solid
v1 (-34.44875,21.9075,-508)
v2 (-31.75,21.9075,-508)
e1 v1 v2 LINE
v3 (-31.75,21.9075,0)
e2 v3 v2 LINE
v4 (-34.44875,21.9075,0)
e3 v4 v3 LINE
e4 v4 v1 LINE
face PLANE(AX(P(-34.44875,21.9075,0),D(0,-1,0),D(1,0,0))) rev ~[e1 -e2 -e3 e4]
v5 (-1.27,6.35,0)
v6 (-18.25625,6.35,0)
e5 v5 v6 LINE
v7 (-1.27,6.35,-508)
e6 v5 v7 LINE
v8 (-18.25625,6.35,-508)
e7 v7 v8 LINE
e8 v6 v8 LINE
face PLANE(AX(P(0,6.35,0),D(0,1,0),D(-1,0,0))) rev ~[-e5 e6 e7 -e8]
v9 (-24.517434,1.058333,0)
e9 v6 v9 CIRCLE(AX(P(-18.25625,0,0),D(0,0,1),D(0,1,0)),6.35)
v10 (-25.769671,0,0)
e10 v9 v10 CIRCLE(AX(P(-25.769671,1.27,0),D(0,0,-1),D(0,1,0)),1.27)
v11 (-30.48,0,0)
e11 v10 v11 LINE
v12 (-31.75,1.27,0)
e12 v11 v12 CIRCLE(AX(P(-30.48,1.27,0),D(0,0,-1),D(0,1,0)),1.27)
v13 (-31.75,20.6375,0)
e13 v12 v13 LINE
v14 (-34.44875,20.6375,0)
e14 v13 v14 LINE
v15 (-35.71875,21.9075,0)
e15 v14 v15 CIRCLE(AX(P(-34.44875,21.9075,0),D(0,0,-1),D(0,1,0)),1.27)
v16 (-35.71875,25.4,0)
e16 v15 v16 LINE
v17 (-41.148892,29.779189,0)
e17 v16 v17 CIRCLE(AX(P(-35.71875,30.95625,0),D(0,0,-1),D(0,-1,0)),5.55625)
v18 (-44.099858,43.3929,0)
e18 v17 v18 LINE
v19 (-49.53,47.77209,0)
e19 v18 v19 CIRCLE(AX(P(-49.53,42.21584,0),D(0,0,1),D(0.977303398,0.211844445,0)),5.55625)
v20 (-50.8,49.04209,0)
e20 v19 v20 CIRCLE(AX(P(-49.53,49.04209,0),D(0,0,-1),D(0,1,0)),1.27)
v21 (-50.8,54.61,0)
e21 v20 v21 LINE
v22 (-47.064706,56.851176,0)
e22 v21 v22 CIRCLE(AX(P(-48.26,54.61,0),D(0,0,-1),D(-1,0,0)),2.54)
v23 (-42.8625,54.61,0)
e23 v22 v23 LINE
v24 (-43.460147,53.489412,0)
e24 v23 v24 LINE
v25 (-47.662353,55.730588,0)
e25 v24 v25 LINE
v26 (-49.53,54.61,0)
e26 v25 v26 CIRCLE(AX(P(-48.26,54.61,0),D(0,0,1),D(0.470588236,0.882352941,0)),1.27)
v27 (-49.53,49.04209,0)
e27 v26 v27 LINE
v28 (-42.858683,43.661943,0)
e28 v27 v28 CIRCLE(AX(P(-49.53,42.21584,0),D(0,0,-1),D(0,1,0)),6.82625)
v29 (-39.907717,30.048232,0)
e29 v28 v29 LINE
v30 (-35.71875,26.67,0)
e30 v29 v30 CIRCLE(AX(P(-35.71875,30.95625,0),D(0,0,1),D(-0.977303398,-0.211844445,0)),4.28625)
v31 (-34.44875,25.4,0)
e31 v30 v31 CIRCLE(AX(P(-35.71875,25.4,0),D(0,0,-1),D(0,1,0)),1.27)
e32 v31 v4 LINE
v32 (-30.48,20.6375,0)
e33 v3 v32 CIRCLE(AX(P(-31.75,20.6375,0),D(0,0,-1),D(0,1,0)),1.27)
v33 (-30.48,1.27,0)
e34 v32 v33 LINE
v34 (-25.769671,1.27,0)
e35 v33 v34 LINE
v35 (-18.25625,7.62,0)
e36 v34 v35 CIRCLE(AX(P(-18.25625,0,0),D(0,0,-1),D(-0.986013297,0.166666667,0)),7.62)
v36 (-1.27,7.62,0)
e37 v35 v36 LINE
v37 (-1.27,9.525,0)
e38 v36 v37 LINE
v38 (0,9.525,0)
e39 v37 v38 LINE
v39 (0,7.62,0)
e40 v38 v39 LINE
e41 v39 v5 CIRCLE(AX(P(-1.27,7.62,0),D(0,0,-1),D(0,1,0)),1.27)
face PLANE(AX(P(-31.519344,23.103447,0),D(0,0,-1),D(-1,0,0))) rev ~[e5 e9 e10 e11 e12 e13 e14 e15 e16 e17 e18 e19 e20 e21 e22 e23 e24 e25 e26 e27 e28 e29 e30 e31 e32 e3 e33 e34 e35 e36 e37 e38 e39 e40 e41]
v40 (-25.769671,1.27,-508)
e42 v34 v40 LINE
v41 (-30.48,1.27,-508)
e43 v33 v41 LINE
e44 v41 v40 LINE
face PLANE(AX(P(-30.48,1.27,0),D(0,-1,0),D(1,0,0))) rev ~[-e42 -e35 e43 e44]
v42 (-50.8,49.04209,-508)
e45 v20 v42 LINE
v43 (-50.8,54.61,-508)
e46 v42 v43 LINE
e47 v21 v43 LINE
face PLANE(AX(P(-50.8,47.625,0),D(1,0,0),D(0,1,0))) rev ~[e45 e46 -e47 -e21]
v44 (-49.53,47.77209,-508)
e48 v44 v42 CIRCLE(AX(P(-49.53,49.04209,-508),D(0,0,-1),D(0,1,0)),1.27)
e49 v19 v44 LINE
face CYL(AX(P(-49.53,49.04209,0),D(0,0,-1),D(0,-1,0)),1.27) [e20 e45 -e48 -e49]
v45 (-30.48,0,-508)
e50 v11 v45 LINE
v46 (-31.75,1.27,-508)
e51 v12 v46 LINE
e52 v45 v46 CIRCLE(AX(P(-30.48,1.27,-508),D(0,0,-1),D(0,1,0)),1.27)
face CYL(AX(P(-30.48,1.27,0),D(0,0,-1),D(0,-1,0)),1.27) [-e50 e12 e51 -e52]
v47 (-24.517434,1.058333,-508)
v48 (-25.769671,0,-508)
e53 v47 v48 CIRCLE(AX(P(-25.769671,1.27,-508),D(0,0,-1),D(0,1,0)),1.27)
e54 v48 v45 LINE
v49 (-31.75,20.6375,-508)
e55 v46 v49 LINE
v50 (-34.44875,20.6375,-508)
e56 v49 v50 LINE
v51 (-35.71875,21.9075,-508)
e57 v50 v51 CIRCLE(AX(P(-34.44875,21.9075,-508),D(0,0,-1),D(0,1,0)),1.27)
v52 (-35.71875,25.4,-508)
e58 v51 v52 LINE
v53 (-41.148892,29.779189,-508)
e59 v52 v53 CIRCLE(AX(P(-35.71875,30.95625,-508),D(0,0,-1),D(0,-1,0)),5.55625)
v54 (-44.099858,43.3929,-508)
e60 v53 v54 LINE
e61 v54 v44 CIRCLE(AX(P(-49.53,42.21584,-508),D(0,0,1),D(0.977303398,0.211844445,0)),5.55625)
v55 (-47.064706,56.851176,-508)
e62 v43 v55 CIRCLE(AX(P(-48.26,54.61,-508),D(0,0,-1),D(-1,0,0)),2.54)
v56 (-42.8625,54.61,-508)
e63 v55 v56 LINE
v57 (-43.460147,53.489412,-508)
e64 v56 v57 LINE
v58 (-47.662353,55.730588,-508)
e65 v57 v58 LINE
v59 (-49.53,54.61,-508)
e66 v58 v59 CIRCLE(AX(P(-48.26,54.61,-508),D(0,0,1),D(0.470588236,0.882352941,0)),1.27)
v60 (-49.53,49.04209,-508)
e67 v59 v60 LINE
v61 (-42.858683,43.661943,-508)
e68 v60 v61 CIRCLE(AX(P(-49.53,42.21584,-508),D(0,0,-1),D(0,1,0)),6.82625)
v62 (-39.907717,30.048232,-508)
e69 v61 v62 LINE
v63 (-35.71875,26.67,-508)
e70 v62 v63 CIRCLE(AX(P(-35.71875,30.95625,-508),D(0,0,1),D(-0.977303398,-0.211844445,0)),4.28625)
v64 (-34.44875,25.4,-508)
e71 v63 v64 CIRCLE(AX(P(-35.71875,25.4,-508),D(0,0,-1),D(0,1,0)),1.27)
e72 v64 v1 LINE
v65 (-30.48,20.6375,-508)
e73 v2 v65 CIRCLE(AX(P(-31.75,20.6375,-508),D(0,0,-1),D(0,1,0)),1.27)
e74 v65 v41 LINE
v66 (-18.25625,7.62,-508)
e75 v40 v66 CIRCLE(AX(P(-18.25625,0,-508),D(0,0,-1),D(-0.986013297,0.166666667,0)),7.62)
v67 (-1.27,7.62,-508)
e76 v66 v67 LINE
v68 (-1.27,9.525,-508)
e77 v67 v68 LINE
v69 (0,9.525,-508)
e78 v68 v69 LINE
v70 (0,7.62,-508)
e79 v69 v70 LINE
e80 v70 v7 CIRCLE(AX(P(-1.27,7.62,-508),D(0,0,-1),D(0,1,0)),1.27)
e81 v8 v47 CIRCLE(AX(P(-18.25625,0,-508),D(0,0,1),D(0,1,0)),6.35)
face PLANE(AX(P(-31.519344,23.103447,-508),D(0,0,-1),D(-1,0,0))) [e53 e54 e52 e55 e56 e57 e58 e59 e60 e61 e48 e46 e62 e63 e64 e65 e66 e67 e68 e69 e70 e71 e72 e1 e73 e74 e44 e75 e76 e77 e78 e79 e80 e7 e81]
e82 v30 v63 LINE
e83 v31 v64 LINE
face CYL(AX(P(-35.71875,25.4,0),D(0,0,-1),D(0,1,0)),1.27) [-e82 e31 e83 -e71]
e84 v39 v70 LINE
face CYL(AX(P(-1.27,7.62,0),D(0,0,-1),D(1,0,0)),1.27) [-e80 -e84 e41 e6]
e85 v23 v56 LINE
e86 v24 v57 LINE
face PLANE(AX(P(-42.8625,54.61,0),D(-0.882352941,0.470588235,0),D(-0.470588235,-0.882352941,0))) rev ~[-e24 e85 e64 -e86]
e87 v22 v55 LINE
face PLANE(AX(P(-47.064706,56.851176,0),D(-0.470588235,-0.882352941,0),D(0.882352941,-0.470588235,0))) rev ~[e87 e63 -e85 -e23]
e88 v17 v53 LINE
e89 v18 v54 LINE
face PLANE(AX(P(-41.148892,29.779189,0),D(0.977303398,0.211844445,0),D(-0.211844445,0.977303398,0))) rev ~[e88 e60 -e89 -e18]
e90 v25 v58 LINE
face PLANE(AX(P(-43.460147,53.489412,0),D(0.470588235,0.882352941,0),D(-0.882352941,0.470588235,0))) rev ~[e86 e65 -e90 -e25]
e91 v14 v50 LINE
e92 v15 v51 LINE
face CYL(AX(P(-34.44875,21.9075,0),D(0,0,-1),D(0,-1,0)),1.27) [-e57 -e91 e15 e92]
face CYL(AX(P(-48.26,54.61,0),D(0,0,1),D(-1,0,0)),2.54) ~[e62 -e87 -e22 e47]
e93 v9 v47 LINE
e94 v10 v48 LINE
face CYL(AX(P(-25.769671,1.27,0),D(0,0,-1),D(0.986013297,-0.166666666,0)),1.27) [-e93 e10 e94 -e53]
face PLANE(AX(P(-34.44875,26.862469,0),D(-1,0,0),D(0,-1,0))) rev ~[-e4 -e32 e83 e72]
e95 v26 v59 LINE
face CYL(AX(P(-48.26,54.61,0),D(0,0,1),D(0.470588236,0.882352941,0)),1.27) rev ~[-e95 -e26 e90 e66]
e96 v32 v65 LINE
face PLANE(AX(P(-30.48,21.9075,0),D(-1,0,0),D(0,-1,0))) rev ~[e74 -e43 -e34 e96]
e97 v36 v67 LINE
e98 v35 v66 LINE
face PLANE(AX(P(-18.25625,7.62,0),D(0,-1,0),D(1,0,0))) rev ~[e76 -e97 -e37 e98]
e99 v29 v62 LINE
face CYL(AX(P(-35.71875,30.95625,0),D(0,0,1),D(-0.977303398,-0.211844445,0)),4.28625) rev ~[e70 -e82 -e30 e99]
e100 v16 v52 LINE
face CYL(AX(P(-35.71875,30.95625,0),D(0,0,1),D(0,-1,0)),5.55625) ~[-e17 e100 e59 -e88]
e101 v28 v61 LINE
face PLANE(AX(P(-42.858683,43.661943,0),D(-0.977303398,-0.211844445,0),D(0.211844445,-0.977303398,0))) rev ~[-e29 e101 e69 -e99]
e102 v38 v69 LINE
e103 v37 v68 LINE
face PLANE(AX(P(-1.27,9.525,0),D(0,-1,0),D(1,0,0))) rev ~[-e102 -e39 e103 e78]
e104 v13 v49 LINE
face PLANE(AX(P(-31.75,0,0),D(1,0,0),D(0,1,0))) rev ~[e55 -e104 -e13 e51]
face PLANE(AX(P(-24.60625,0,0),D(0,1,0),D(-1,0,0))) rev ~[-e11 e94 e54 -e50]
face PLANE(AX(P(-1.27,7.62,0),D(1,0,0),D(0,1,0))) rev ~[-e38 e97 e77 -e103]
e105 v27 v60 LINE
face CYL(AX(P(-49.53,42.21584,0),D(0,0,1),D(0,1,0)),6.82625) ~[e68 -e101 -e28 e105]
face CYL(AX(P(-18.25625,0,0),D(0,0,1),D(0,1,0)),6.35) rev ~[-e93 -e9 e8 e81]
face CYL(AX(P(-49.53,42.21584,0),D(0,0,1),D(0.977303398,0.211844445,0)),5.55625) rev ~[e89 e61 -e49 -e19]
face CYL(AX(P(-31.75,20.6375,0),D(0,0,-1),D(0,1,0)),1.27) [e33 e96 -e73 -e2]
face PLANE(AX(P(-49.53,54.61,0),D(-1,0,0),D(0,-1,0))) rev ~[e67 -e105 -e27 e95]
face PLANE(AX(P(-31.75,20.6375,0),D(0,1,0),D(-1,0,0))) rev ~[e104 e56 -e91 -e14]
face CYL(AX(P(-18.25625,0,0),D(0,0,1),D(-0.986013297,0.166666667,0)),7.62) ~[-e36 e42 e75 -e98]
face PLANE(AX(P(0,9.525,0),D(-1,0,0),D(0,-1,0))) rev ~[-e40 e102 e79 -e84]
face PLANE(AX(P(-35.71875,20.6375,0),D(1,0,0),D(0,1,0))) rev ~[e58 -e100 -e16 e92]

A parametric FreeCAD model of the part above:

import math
import FreeCAD as App
import Part
import Sketcher
Q = App.Units.Quantity


def edges_at(feature, points):
    """Names of the edges that pass closest to the given points."""
    edges = feature.Shape.Edges
    near = lambda p: min(range(len(edges)), key=lambda i: edges[i].distToShape(Part.Vertex(*p))[0])
    return sorted({f"Edge{near(p) + 1}" for p in points})

doc = App.newDocument("Part")
params = doc.addObject("Spreadsheet::Sheet", "Params")
for row, (alias, value) in enumerate([
    ("sketch1_radius", "0.3 in"),
    ("sketch1_radius2", "0.1 in"),
    ("sketch1_radius3", "0.05 in"),
    ("sketch1_radius4", "0.25 in"),
    ("sketch1_radius5", "0.21875 in"),
    ("pad1_length", "20 in"),
    ("fillet_radius", "0.05 in"),
], start=1):
    params.set(f"A{row}", alias)
    params.set(f"B{row}", "=" + value)
    params.setAlias(f"B{row}", alias)

body = doc.addObject("PartDesign::Body", "Body")

sketch1 = body.newObject("Sketcher::SketchObject", "Sketch")
sketch1.AttachmentSupport = (doc.getObject("XY_Plane"), [""])
sketch1.MapMode = "FlatFace"
sketch1.addGeometry(Part.LineSegment(App.Vector(0, 6.3, 0), App.Vector(0, 9.5, 0)), False)
sketch1.addGeometry(Part.LineSegment(App.Vector(0, 9.5, 0), App.Vector(-1.3, 9.5, 0)), False)
sketch1.addGeometry(Part.LineSegment(App.Vector(-1.3, 9.5, 0), App.Vector(-1.3, 7.6, 0)), False)
sketch1.addGeometry(Part.LineSegment(App.Vector(-1.3, 7.6, 0), App.Vector(-18.3, 7.6, 0)), False)
sketch1.addGeometry(Part.ArcOfCircle(Part.Circle(App.Vector(-18.3, 0, 0), App.Vector(0, 0, 1), 7.6), math.radians(90), math.radians(170)), False)
sketch1.addGeometry(Part.LineSegment(App.Vector(-25.8, 1.3, 0), App.Vector(-30.5, 1.3, 0)), False)
sketch1.addGeometry(Part.LineSegment(App.Vector(-30.5, 1.3, 0), App.Vector(-30.5, 21.9, 0)), False)
sketch1.addGeometry(Part.LineSegment(App.Vector(-30.5, 21.9, 0), App.Vector(-34.4, 21.9, 0)), False)
sketch1.addGeometry(Part.LineSegment(App.Vector(-34.4, 21.9, 0), App.Vector(-34.4, 26.9, 0)), False)
sketch1.addGeometry(Part.ArcOfCircle(Part.Circle(App.Vector(-35.7, 31, 0), App.Vector(0, 0, 1), 4.3), math.radians(-168), math.radians(-73)), False)
sketch1.addGeometry(Part.LineSegment(App.Vector(-39.9, 30, 0), App.Vector(-42.9, 43.7, 0)), False)
sketch1.addGeometry(Part.ArcOfCircle(Part.Circle(App.Vector(-49.5, 42.2, 0), App.Vector(0, 0, 1), 6.8), math.radians(12), math.radians(90)), False)
sketch1.addGeometry(Part.LineSegment(App.Vector(-49.5, 49, 0), App.Vector(-49.5, 54.6, 0)), False)
sketch1.addGeometry(Part.ArcOfCircle(Part.Circle(App.Vector(-48.3, 54.6, 0), App.Vector(0, 0, 1), 1.3), math.radians(62), math.radians(180)), False)
sketch1.addGeometry(Part.LineSegment(App.Vector(-47.7, 55.7, 0), App.Vector(-43.5, 53.5, 0)), False)
sketch1.addGeometry(Part.LineSegment(App.Vector(-43.5, 53.5, 0), App.Vector(-42.9, 54.6, 0)), False)
sketch1.addGeometry(Part.LineSegment(App.Vector(-42.9, 54.6, 0), App.Vector(-47.1, 56.9, 0)), False)
sketch1.addGeometry(Part.ArcOfCircle(Part.Circle(App.Vector(-48.3, 54.6, 0), App.Vector(0, 0, 1), 2.5), math.radians(62), math.radians(180)), False)
sketch1.addGeometry(Part.LineSegment(App.Vector(-50.8, 54.6, 0), App.Vector(-50.8, 47.6, 0)), False)
sketch1.addGeometry(Part.ArcOfCircle(Part.Circle(App.Vector(-49.5, 42.2, 0), App.Vector(0, 0, 1), 5.6), math.radians(12), math.radians(103)), False)
sketch1.addGeometry(Part.LineSegment(App.Vector(-44.1, 43.4, 0), App.Vector(-41.1, 29.8, 0)), False)
sketch1.addGeometry(Part.ArcOfCircle(Part.Circle(App.Vector(-35.7, 31, 0), App.Vector(0, 0, 1), 5.6), math.radians(-168), math.radians(-90)), False)
sketch1.addGeometry(Part.LineSegment(App.Vector(-35.7, 25.4, 0), App.Vector(-35.7, 20.6, 0)), False)
sketch1.addGeometry(Part.LineSegment(App.Vector(-35.7, 20.6, 0), App.Vector(-31.8, 20.6, 0)), False)
sketch1.addGeometry(Part.LineSegment(App.Vector(-31.8, 20.6, 0), App.Vector(-31.8, 0, 0)), False)
sketch1.addGeometry(Part.LineSegment(App.Vector(-31.8, 0, 0), App.Vector(-24.6, 0, 0)), False)
sketch1.addGeometry(Part.ArcOfCircle(Part.Circle(App.Vector(-18.3, 0, 0), App.Vector(0, 0, 1), 6.3), math.radians(90), math.radians(180)), False)
sketch1.addGeometry(Part.LineSegment(App.Vector(-18.3, 6.3, 0), App.Vector(0, 6.3, 0)), False)
sketch1.addConstraint(Sketcher.Constraint("Coincident", 0, 2, 1, 1))
sketch1.addConstraint(Sketcher.Constraint("Coincident", 1, 2, 2, 1))
sketch1.addConstraint(Sketcher.Constraint("Coincident", 2, 2, 3, 1))
sketch1.addConstraint(Sketcher.Constraint("Tangent", 3, 2, 4, 1))
sketch1.addConstraint(Sketcher.Constraint("Coincident", 4, 2, 5, 1))
sketch1.addConstraint(Sketcher.Constraint("Coincident", 5, 2, 6, 1))
sketch1.addConstraint(Sketcher.Constraint("Coincident", 6, 2, 7, 1))
sketch1.addConstraint(Sketcher.Constraint("Coincident", 7, 2, 8, 1))
sketch1.addConstraint(Sketcher.Constraint("Coincident", 8, 2, 9, 2))
sketch1.addConstraint(Sketcher.Constraint("Tangent", 9, 1, 10, 1))
sketch1.addConstraint(Sketcher.Constraint("Tangent", 10, 2, 11, 1))
sketch1.addConstraint(Sketcher.Constraint("Coincident", 11, 2, 12, 1))
sketch1.addConstraint(Sketcher.Constraint("Tangent", 12, 2, 13, 2))
sketch1.addConstraint(Sketcher.Constraint("Tangent", 13, 1, 14, 1))
sketch1.addConstraint(Sketcher.Constraint("Coincident", 14, 2, 15, 1))
sketch1.addConstraint(Sketcher.Constraint("Coincident", 15, 2, 16, 1))
sketch1.addConstraint(Sketcher.Constraint("Tangent", 16, 2, 17, 1))
sketch1.addConstraint(Sketcher.Constraint("Tangent", 17, 2, 18, 1))
sketch1.addConstraint(Sketcher.Constraint("Coincident", 18, 2, 19, 2))
sketch1.addConstraint(Sketcher.Constraint("Tangent", 19, 1, 20, 1))
sketch1.addConstraint(Sketcher.Constraint("Tangent", 20, 2, 21, 1))
sketch1.addConstraint(Sketcher.Constraint("Coincident", 21, 2, 22, 1))
sketch1.addConstraint(Sketcher.Constraint("Coincident", 22, 2, 23, 1))
sketch1.addConstraint(Sketcher.Constraint("Coincident", 23, 2, 24, 1))
sketch1.addConstraint(Sketcher.Constraint("Coincident", 24, 2, 25, 1))
sketch1.addConstraint(Sketcher.Constraint("Coincident", 25, 2, 26, 2))
sketch1.addConstraint(Sketcher.Constraint("Tangent", 26, 1, 27, 1))
sketch1.addConstraint(Sketcher.Constraint("Coincident", 27, 2, 0, 1))
sketch1.addConstraint(Sketcher.Constraint("Vertical", 0))
sketch1.addConstraint(Sketcher.Constraint("Horizontal", 1))
sketch1.addConstraint(Sketcher.Constraint("Vertical", 2))
sketch1.addConstraint(Sketcher.Constraint("Horizontal", 3))
sketch1.addConstraint(Sketcher.Constraint("Horizontal", 5))
sketch1.addConstraint(Sketcher.Constraint("Vertical", 6))
sketch1.addConstraint(Sketcher.Constraint("Horizontal", 7))
sketch1.addConstraint(Sketcher.Constraint("Vertical", 8))
sketch1.addConstraint(Sketcher.Constraint("Vertical", 12))
sketch1.addConstraint(Sketcher.Constraint("Vertical", 18))
sketch1.addConstraint(Sketcher.Constraint("Vertical", 22))
sketch1.addConstraint(Sketcher.Constraint("Horizontal", 23))
sketch1.addConstraint(Sketcher.Constraint("Vertical", 24))
sketch1.addConstraint(Sketcher.Constraint("Horizontal", 25))
sketch1.addConstraint(Sketcher.Constraint("Horizontal", 27))
sketch1.addConstraint(Sketcher.Constraint("Coincident", 17, 3, 13, 3))
sketch1.addConstraint(Sketcher.Constraint("Coincident", 19, 3, 11, 3))
sketch1.addConstraint(Sketcher.Constraint("Coincident", 21, 3, 9, 3))
sketch1.addConstraint(Sketcher.Constraint("Coincident", 26, 3, 4, 3))
sketch1.addConstraint(Sketcher.Constraint("Equal", 19, 21))
sketch1.addConstraint(Sketcher.Constraint("PointOnObject", 4, 3, -1))
sketch1.addConstraint(Sketcher.Constraint("PointOnObject", 0, 2, -2))
sketch1.addConstraint(Sketcher.Constraint("PointOnObject", 24, 2, -1))
sketch1.addConstraint(Sketcher.Constraint("Perpendicular", 14, 15))
sketch1.addConstraint(Sketcher.Constraint("Perpendicular", 15, 16))
sketch1.addConstraint(Sketcher.Constraint("Parallel", 10, 20))
sketch1.addConstraint(Sketcher.Constraint("Horizontal", 12, 2, 15, 2))
sketch1.addConstraint(Sketcher.Constraint("Vertical", 19, 3, 11, 2))
sketch1.addConstraint(Sketcher.Constraint("Vertical", 9, 3, 21, 2))
sketch1.addConstraint(Sketcher.Constraint("Equal", 7, 23))
sketch1.addConstraint(Sketcher.Constraint("Equal", 6, 24))
sketch1.addConstraint(Sketcher.Constraint("Radius", 4, Q("0.3 in")))
sketch1.addConstraint(Sketcher.Constraint("Radius", 17, Q("0.1 in")))
sketch1.addConstraint(Sketcher.Constraint("Radius", 13, Q("0.05 in")))
sketch1.addConstraint(Sketcher.Constraint("Radius", 26, Q("0.25 in")))
sketch1.addConstraint(Sketcher.Constraint("DistanceX", 17, 2, -1, 1, Q("2 in")))
sketch1.addConstraint(Sketcher.Constraint("DistanceY", -1, 1, 21, 2, Q("1 in")))
sketch1.addConstraint(Sketcher.Constraint("Radius", 19, Q("0.21875 in")))
sketch1.addConstraint(Sketcher.Constraint("DistanceX", 1, 2, 1, 1, Q("0.05 in")))
sketch1.addConstraint(Sketcher.Constraint("DistanceX", 5, 2, -1, 1, Q("1.2 in")))
sketch1.addConstraint(Sketcher.Constraint("DistanceY", 4, 2, 26, 1, Q("0.2 in")))
sketch1.addConstraint(Sketcher.Constraint("DistanceX", 7, 2, 7, 1, Q("0.15625 in")))
sketch1.addConstraint(Sketcher.Constraint("DistanceX", 25, 1, 25, 2, Q("0.28125 in")))
sketch1.addConstraint(Sketcher.Constraint("DistanceX", 27, 1, 27, 2, Q("0.71875 in")))
sketch1.addConstraint(Sketcher.Constraint("DistanceY", 0, 1, 0, 2, Q("0.125 in")))
sketch1.addConstraint(Sketcher.Constraint("DistanceY", 6, 1, 6, 2, Q("0.8125 in")))
sketch1.addConstraint(Sketcher.Constraint("DistanceY", 18, 2, 18, 1, Q("0.275 in")))
sketch1.addConstraint(Sketcher.Constraint("DistanceY", -1, 1, 13, 3, Q("2.15 in")))
sketch1.addConstraint(Sketcher.Constraint("Distance", 14, Q("0.1875 in")))
sketch1.addConstraint(Sketcher.Constraint("Radius", 9, Q("4.28625 mm")))
sketch1.setExpression("Constraints[59]", "Params.sketch1_radius")
sketch1.setExpression("Constraints[60]", "Params.sketch1_radius2")
sketch1.setExpression("Constraints[61]", "Params.sketch1_radius3")
sketch1.setExpression("Constraints[62]", "Params.sketch1_radius4")
sketch1.setExpression("Constraints[65]", "Params.sketch1_radius5")
pad1 = body.newObject("PartDesign::Pad", "Pad")
pad1.Profile = sketch1
pad1.setExpression("Length", "Params.pad1_length")
pad1.Reversed = True
doc.recompute()

fillet = body.newObject("PartDesign::Fillet", "Fillet")
fillet.Base = (pad1, edges_at(pad1, [
    (-34.449, 26.862, -254),
    (-30.48, 21.907, -254),
    (0, 6.35, -254),
    (-24.606, 0, -254),
    (-31.75, 0, -254),
    (-35.719, 20.637, -254),
    (-50.8, 47.625, -254),
]))
fillet.setExpression("Radius", "Params.fillet_radius")

doc.recompute()
